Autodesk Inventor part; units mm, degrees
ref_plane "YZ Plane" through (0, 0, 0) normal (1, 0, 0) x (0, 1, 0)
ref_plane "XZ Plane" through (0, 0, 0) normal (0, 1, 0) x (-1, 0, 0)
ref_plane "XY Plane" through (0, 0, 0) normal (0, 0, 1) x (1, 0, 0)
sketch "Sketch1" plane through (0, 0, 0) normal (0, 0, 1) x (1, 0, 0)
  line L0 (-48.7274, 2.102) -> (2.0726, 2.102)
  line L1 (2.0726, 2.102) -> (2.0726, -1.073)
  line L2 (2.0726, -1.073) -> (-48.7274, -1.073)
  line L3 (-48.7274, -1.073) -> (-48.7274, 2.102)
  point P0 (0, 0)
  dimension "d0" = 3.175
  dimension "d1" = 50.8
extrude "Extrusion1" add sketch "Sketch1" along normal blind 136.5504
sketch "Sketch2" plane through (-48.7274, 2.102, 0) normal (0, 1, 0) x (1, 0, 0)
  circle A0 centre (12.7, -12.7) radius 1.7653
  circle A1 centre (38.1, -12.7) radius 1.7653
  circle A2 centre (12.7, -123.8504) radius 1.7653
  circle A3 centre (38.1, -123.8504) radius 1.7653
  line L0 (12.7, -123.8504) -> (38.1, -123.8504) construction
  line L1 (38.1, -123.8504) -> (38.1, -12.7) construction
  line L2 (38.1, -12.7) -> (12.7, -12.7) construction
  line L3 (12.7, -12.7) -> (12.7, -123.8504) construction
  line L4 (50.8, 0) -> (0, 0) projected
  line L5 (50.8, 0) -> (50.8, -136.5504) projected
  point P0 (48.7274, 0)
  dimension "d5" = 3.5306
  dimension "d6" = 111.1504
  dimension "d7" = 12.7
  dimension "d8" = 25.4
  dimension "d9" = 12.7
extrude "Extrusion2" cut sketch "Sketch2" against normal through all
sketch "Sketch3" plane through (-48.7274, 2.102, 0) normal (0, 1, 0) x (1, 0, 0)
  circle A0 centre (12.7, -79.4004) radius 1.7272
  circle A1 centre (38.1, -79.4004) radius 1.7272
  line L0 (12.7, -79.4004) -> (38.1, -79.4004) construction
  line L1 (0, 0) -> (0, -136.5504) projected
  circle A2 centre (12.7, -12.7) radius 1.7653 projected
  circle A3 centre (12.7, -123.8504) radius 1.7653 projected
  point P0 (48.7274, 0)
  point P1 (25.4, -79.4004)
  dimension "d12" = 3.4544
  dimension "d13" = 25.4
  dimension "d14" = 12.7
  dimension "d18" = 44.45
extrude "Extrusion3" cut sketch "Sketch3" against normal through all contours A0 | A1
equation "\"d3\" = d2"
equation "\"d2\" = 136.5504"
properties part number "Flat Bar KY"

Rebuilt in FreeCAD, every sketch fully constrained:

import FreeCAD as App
import Part
import Sketcher
from FreeCAD import Vector
Q = App.Units.Quantity


def add_polygon(sketch, points):
    """Adds a closed chain of lines whose ends are joined by coincident constraints."""
    first, n = sketch.GeometryCount, len(points)
    for a, b in zip(points, points[1:] + points[:1]):
        sketch.addGeometry(Part.LineSegment(App.Vector(*a, 0), App.Vector(*b, 0)), False)
    for i in range(n):
        sketch.addConstraint(Sketcher.Constraint("Coincident", first + i, 2, first + (i + 1) % n, 1))

doc = App.newDocument("Part")
body = doc.addObject("PartDesign::Body", "Body")

sketch1 = body.newObject("Sketcher::SketchObject", "Sketch")
sketch1.AttachmentSupport = (doc.getObject("XY_Plane"), [""])
sketch1.MapMode = "FlatFace"
add_polygon(sketch1, [(2.1, 2.1), (-48.7, 2.1), (-48.7, -1.1), (2.1, -1.1)])
sketch1.addConstraint([
    Sketcher.Constraint("Horizontal", 0),
    Sketcher.Constraint("Vertical", 1),
    Sketcher.Constraint("Horizontal", 2),
    Sketcher.Constraint("Vertical", 3),
    Sketcher.Constraint("DistanceX", 0, 2, 0, 1, Q("2 in")),
    Sketcher.Constraint("DistanceY", 1, 2, 1, 1, Q("0.125 in")),
    Sketcher.Constraint("DistanceX", 0, 2, -1, 1, Q("1.9184 in")),
    Sketcher.Constraint("DistanceY", -1, 1, 0, 2, 2.102),
])
pad1 = body.newObject("PartDesign::Pad", "Pad")
pad1.Profile = sketch1
pad1.Length = Q("5.376 in")

sketch2 = body.newObject("Sketcher::SketchObject", "Sketch001")
sketch2.AttachmentSupport = (doc.getObject("XZ_Plane"), [""])
sketch2.MapMode = "FlatFace"
sketch2.AttachmentOffset = App.Placement(Vector(0, 0, -2.102), App.Rotation())
sketch2.addGeometry([
    Part.Circle(Vector(-36, 12.7, 0), Vector(0, 0, 1), 1.8),
    Part.Circle(Vector(-10.6, 12.7, 0), Vector(0, 0, 1), 1.8),
    Part.Circle(Vector(-36, 123.9, 0), Vector(0, 0, 1), 1.8),
    Part.Circle(Vector(-10.6, 123.9, 0), Vector(0, 0, 1), 1.8),
], False)
sketch2.addConstraint([
    Sketcher.Constraint("Equal", 0, 1),
    Sketcher.Constraint("Equal", 1, 2),
    Sketcher.Constraint("Equal", 2, 3),
    Sketcher.Constraint("Horizontal", 0, 3, 1, 3),
    Sketcher.Constraint("Horizontal", 2, 3, 3, 3),
    Sketcher.Constraint("Vertical", 0, 3, 2, 3),
    Sketcher.Constraint("Vertical", 1, 3, 3, 3),
    Sketcher.Constraint("Diameter", 0, Q("0.139 in")),
    Sketcher.Constraint("DistanceX", 0, 3, 1, 3, Q("1 in")),
    Sketcher.Constraint("DistanceY", -1, 1, 0, 3, Q("0.5 in")),
    Sketcher.Constraint("DistanceY", 0, 3, 2, 3, Q("4.376 in")),
    Sketcher.Constraint("DistanceX", 0, 3, -1, 1, Q("1.4184 in")),
])
pocket1 = body.newObject("PartDesign::Pocket", "Pocket")
pocket1.Profile = sketch2
pocket1.Type = "ThroughAll"
pocket1.Reversed = True

sketch3 = body.newObject("Sketcher::SketchObject", "Sketch002")
sketch3.AttachmentSupport = (doc.getObject("XZ_Plane"), [""])
sketch3.MapMode = "FlatFace"
sketch3.AttachmentOffset = App.Placement(Vector(0, 0, -2.102), App.Rotation())
sketch3.addGeometry([
    Part.Circle(Vector(-36, 79.4, 0), Vector(0, 0, 1), 1.7),
    Part.Circle(Vector(-10.6, 79.4, 0), Vector(0, 0, 1), 1.7),
], False)
sketch3.addConstraint([
    Sketcher.Constraint("Equal", 0, 1),
    Sketcher.Constraint("Horizontal", 0, 3, 1, 3),
    Sketcher.Constraint("Diameter", 0, Q("0.136 in")),
    Sketcher.Constraint("DistanceX", 0, 3, 1, 3, Q("1 in")),
    Sketcher.Constraint("DistanceY", -1, 1, 0, 3, Q("3.126 in")),
    Sketcher.Constraint("DistanceX", 0, 3, -1, 1, Q("1.4184 in")),
])
pocket2 = body.newObject("PartDesign::Pocket", "Pocket001")
pocket2.Profile = sketch3
pocket2.Type = "ThroughAll"
pocket2.Reversed = True

doc.recompute()
